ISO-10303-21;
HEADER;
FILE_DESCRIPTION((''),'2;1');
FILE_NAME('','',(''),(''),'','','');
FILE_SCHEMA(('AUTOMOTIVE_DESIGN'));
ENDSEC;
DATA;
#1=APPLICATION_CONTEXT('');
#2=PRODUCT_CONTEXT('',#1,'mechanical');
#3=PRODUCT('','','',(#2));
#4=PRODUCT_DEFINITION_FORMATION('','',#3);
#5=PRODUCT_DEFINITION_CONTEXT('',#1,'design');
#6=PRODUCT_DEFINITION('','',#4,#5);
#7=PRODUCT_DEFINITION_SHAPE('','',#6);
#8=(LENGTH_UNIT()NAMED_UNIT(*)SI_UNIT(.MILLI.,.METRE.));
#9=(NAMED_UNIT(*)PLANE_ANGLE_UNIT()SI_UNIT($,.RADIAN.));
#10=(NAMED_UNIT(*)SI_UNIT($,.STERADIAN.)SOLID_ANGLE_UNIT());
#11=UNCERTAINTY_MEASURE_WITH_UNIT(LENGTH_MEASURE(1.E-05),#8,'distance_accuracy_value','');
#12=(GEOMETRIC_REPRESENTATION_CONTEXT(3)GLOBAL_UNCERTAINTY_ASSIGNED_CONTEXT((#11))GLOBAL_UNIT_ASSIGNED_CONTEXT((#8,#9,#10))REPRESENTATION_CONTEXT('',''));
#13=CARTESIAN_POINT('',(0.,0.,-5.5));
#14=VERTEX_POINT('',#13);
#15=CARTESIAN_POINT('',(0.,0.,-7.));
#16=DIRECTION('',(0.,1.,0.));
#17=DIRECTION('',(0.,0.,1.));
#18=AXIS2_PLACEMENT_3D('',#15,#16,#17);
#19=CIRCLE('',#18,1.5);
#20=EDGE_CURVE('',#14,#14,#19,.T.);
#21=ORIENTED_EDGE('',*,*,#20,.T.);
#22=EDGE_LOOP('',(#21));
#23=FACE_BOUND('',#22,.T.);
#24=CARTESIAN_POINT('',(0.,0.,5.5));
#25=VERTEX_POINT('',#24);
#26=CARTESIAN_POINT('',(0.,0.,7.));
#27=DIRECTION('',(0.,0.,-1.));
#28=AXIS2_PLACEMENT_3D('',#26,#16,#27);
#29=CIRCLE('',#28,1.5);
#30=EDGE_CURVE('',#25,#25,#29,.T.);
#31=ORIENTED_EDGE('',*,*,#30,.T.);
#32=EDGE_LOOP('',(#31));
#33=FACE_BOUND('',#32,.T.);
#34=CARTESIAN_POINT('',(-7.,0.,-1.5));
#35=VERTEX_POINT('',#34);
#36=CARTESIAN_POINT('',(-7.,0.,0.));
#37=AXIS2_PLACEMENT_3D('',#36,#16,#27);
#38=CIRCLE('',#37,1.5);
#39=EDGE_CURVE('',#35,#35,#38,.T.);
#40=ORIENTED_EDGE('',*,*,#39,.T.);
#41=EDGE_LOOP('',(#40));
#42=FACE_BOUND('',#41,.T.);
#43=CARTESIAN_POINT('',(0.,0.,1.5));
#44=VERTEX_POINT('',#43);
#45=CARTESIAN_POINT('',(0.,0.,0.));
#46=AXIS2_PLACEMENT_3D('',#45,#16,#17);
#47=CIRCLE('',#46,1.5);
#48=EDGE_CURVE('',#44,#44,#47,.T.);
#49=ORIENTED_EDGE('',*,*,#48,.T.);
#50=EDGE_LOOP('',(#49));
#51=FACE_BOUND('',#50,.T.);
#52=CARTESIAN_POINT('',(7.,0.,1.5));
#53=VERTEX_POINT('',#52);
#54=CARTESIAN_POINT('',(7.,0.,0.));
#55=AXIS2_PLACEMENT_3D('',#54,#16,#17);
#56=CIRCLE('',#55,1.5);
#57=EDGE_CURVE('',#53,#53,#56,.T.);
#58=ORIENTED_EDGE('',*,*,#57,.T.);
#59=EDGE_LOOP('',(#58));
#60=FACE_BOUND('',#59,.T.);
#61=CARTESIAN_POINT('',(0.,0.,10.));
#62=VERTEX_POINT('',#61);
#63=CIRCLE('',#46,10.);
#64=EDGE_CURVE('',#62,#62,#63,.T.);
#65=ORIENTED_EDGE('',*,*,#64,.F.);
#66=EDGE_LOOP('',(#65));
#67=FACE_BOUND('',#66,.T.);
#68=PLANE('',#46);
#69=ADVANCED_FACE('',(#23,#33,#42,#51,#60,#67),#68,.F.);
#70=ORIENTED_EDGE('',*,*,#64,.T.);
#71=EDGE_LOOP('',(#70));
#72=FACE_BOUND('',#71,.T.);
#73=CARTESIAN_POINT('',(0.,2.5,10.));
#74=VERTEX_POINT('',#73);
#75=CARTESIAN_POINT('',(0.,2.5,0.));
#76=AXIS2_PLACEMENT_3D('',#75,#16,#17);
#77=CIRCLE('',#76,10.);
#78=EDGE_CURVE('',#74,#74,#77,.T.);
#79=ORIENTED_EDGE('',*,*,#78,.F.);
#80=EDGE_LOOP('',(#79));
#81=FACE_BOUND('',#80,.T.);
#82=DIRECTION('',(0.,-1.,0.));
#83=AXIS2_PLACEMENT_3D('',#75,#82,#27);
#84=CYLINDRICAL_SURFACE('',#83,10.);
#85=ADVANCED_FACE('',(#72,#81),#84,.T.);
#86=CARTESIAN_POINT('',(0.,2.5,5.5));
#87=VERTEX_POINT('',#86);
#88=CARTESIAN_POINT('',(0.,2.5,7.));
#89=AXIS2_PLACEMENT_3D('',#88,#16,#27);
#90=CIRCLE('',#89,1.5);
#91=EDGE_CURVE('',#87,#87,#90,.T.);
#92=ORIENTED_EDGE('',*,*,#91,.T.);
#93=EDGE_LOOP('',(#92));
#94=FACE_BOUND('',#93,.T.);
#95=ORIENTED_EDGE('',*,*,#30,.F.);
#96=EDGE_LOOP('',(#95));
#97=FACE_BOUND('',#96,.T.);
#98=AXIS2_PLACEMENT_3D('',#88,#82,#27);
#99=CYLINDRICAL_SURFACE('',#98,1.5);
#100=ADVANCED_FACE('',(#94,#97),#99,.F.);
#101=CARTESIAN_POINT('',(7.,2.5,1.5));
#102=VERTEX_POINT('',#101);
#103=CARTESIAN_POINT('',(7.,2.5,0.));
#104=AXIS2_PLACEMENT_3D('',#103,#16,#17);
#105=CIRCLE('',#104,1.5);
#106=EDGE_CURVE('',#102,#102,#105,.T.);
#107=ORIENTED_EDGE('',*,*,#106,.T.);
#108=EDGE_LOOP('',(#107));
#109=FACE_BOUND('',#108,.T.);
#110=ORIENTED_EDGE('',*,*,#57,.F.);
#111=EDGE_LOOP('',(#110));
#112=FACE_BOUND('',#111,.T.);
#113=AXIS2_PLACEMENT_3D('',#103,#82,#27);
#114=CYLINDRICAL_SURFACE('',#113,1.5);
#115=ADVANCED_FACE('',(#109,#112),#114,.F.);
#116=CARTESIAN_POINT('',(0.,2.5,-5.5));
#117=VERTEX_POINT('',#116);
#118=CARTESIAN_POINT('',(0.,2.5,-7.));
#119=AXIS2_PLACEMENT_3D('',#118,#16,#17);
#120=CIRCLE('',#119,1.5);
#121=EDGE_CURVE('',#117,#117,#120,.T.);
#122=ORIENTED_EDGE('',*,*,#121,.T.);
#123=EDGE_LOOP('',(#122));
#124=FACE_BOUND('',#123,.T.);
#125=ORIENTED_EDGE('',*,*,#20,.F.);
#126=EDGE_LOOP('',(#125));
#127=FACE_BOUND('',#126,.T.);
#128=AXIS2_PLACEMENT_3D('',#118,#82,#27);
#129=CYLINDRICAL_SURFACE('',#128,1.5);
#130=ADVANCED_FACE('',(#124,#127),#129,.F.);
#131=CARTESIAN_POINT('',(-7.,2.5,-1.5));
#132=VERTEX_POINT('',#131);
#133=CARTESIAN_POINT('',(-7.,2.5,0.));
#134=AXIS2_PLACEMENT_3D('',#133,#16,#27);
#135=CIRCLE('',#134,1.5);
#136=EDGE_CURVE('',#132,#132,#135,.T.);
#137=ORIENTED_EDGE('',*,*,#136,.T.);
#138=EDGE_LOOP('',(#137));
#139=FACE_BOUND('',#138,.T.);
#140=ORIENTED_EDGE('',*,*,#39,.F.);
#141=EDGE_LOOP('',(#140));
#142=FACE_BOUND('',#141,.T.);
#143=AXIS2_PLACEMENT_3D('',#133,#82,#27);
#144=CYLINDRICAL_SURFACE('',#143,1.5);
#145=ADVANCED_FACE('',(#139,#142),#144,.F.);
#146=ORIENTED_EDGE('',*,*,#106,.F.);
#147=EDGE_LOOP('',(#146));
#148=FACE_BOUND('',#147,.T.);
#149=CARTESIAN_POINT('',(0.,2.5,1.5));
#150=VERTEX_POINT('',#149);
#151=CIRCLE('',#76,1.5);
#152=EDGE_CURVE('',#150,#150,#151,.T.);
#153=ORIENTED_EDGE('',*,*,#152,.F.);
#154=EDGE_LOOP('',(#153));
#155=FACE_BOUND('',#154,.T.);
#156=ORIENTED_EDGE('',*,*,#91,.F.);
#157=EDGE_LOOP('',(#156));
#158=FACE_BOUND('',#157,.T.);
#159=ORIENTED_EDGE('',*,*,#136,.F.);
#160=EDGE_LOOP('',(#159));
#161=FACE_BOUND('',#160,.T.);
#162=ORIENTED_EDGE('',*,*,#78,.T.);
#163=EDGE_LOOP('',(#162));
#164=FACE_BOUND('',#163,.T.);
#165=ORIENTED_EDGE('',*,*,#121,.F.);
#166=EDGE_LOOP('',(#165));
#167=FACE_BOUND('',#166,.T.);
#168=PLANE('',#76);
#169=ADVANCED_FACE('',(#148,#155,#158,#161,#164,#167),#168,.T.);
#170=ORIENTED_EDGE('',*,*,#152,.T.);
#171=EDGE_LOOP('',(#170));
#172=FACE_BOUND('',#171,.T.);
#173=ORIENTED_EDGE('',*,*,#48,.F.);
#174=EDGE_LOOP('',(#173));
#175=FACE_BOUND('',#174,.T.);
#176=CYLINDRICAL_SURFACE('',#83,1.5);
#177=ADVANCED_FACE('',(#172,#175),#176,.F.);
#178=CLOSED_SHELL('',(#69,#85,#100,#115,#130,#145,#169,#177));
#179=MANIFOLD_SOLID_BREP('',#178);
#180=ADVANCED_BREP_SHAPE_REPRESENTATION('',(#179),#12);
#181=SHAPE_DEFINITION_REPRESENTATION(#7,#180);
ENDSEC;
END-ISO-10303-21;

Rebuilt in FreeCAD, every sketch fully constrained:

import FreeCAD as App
import Part
import Sketcher
from FreeCAD import Vector
Q = App.Units.Quantity

doc = App.newDocument("Part")
params = doc.addObject("Spreadsheet::Sheet", "Params")
for row, (alias, value) in enumerate([
    ("sketch1_diameter", "20 mm"),
    ("sketch1_diameter2", "3 mm"),
    ("pad1_length", "2.5 mm"),
], start=1):
    params.set(f"A{row}", alias)
    params.set(f"B{row}", "=" + value)
    params.setAlias(f"B{row}", alias)

body = doc.addObject("PartDesign::Body", "Body")

# Sketch on XZ plane
sketch1 = body.newObject("Sketcher::SketchObject", "Sketch")
sketch1.AttachmentSupport = (doc.getObject("XZ_Plane"), [""])
sketch1.MapMode = "FlatFace"
sketch1.addGeometry(Part.Circle(Vector(0, 0, 0), Vector(0, 0, 1), 10), False)
sketch1.addGeometry(Part.Circle(Vector(0, -7, 0), Vector(0, 0, 1), 1.5), False)
sketch1.addGeometry(Part.Circle(Vector(-7, 0, 0), Vector(0, 0, 1), 1.5), False)
sketch1.addGeometry(Part.Circle(Vector(7, 0, 0), Vector(0, 0, 1), 1.5), False)
sketch1.addGeometry(Part.Circle(Vector(0, 0, 0), Vector(0, 0, 1), 1.5), False)
sketch1.addGeometry(Part.Circle(Vector(0, 7, 0), Vector(0, 0, 1), 1.5), False)
sketch1.addConstraint(Sketcher.Constraint("Coincident", 0, 3, -1, 1))
sketch1.addConstraint(Sketcher.Constraint("Coincident", 4, 3, -1, 1))
sketch1.addConstraint(Sketcher.Constraint("Equal", 1, 2))
sketch1.addConstraint(Sketcher.Constraint("Equal", 2, 3))
sketch1.addConstraint(Sketcher.Constraint("Equal", 3, 4))
sketch1.addConstraint(Sketcher.Constraint("Equal", 4, 5))
sketch1.addConstraint(Sketcher.Constraint("Symmetric", 2, 3, 3, 3, -1, 1))
sketch1.addConstraint(Sketcher.Constraint("Symmetric", 1, 3, 5, 3, -1, 1))
sketch1.addConstraint(Sketcher.Constraint("PointOnObject", 1, 3, -2))
sketch1.addConstraint(Sketcher.Constraint("PointOnObject", 2, 3, -1))
sketch1.addConstraint(Sketcher.Constraint("Diameter", 0, Q("20 mm")))
sketch1.addConstraint(Sketcher.Constraint("Diameter", 1, Q("3 mm")))
sketch1.addConstraint(Sketcher.Constraint("DistanceY", 1, 3, -1, 1, Q("7 mm")))
sketch1.addConstraint(Sketcher.Constraint("DistanceX", 2, 3, -1, 1, Q("7 mm")))
sketch1.setExpression("Constraints[10]", "Params.sketch1_diameter")
sketch1.setExpression("Constraints[11]", "Params.sketch1_diameter2")
pad1 = body.newObject("PartDesign::Pad", "Pad")
pad1.Profile = sketch1
pad1.setExpression("Length", "Params.pad1_length")
pad1.Reversed = True

doc.recompute()
